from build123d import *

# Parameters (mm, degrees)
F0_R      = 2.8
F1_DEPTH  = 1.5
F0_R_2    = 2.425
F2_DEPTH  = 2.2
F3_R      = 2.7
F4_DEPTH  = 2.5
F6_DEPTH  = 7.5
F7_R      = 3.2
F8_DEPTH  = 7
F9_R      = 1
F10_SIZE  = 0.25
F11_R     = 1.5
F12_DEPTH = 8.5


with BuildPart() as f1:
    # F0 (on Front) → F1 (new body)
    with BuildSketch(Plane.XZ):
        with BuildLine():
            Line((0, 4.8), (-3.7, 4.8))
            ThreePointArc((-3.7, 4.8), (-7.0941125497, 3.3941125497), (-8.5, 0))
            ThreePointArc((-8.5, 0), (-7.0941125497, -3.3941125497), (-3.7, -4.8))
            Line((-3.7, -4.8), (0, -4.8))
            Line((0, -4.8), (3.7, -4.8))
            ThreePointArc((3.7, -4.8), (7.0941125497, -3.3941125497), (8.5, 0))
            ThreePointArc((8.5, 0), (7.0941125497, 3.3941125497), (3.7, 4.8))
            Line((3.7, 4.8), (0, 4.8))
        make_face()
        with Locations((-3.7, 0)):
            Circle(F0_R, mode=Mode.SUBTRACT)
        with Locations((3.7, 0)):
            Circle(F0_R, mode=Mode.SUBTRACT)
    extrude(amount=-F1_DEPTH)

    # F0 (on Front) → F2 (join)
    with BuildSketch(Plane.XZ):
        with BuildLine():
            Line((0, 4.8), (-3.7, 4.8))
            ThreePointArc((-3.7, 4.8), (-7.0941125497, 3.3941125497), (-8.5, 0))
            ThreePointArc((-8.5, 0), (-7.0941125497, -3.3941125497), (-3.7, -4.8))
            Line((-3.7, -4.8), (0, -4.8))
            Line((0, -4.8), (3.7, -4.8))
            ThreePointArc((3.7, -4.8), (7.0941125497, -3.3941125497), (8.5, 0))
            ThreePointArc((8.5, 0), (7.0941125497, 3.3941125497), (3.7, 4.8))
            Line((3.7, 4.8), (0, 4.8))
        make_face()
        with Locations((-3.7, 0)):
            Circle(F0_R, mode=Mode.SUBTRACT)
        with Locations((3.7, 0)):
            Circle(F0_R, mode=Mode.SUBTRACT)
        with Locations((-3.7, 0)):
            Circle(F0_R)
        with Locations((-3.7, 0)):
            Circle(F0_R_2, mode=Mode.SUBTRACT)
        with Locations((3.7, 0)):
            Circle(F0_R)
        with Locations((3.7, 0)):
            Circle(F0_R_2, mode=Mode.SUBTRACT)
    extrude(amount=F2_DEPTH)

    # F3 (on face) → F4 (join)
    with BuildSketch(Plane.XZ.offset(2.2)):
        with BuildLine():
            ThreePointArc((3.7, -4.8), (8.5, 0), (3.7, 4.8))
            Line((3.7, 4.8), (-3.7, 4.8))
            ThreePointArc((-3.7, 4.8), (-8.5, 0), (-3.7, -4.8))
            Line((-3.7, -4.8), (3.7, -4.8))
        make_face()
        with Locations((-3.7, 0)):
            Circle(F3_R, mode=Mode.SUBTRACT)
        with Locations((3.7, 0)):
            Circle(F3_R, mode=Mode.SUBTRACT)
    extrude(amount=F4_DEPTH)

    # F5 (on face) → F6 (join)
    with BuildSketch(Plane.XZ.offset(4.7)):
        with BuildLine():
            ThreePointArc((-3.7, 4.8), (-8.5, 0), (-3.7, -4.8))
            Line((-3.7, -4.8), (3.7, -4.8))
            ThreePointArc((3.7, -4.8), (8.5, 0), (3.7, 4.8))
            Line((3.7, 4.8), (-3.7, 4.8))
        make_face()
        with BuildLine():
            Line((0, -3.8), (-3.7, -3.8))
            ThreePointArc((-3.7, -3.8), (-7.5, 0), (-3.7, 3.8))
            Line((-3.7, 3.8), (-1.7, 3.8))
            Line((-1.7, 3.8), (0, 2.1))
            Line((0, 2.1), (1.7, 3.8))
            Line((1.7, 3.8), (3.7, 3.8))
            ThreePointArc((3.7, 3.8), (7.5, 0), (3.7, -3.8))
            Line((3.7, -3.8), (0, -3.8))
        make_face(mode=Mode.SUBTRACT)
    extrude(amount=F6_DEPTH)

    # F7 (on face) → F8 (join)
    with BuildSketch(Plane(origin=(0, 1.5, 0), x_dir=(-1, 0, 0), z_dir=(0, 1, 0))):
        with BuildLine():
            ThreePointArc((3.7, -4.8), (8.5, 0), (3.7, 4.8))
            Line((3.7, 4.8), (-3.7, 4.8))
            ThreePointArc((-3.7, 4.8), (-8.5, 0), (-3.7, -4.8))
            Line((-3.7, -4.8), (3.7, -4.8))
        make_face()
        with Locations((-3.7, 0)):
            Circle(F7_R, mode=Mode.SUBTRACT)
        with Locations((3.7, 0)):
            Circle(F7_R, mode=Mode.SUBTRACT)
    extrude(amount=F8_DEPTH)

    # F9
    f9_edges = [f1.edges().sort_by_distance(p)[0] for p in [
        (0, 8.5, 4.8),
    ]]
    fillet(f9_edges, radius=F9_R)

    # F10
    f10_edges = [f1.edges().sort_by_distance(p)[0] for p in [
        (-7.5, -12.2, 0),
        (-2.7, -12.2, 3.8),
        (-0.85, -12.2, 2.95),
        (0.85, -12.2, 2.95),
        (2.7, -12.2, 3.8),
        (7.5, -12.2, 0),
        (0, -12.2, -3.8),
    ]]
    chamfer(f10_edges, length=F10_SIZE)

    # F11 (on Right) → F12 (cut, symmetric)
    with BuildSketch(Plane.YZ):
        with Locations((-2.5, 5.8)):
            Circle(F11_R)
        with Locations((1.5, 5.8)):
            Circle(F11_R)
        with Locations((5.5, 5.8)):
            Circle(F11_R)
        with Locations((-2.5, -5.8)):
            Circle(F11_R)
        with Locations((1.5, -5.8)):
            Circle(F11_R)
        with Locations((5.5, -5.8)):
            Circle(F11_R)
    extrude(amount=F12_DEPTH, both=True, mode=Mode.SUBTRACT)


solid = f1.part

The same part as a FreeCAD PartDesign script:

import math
import FreeCAD as App
import Part
import Sketcher

V = App.Vector


def edges_at(feature, points):
    """Names of the edges that pass closest to the given points."""
    edges = feature.Shape.Edges
    near = lambda p: min(range(len(edges)), key=lambda i: edges[i].distToShape(Part.Vertex(*p))[0])
    return sorted({f"Edge{near(p) + 1}" for p in points})

doc = App.newDocument("Part")
body = doc.addObject("PartDesign::Body", "Body")

# Sketch on XZ plane
sketch1 = body.newObject("Sketcher::SketchObject", "Sketch")
sketch1.AttachmentSupport = (doc.getObject("XZ_Plane"), [""])
sketch1.MapMode = "FlatFace"
sketch1.addGeometry([
    Part.ArcOfCircle(Part.Circle(V(-3.7, 0, 0), V(0, 0, 1), 4.8), math.radians(90), math.radians(180)),  # 0
    Part.ArcOfCircle(Part.Circle(V(-3.7, 0, 0), V(0, 0, 1), 4.8), math.radians(180), math.radians(270)),  # 1
    Part.LineSegment(V(-3.7, -4.8, 0), V(3.7, -4.8, 0)),  # 2
    Part.ArcOfCircle(Part.Circle(V(3.7, 0, 0), V(0, 0, 1), 4.8), math.radians(-90), math.radians(0)),  # 3
    Part.ArcOfCircle(Part.Circle(V(3.7, 0, 0), V(0, 0, 1), 4.8), math.radians(0), math.radians(90)),  # 4
    Part.LineSegment(V(3.7, 4.8, 0), V(-3.7, 4.8, 0)),  # 5
    Part.Circle(V(-3.7, 0, 0), V(0, 0, 1), 2.8),  # 6
    Part.Circle(V(3.7, 0, 0), V(0, 0, 1), 2.8),  # 7
], False)
sketch1.addConstraint([
    Sketcher.Constraint("Tangent", 0, 2, 1, 1),
    Sketcher.Constraint("Tangent", 1, 2, 2, 1),
    Sketcher.Constraint("Tangent", 2, 2, 3, 1),
    Sketcher.Constraint("Tangent", 3, 2, 4, 1),
    Sketcher.Constraint("Tangent", 4, 2, 5, 1),
    Sketcher.Constraint("Tangent", 5, 2, 0, 1),
    Sketcher.Constraint("Horizontal", 2),
    Sketcher.Constraint("Horizontal", 5),
    Sketcher.Constraint("Coincident", 6, 3, 0, 3),
    Sketcher.Constraint("Coincident", 7, 3, 3, 3),
    Sketcher.Constraint("Equal", 0, 1),
    Sketcher.Constraint("Equal", 1, 3),
    Sketcher.Constraint("Equal", 6, 7),
    Sketcher.Constraint("Symmetric", 0, 3, 3, 3, -1, 1),
    Sketcher.Constraint("PointOnObject", 0, 2, -1),
    Sketcher.Constraint("PointOnObject", 3, 2, -1),
    Sketcher.Constraint("Diameter", 6, 5.6),
    Sketcher.Constraint("Radius", 0, 4.8),
    Sketcher.Constraint("DistanceX", 2, 1, 2, 2, 7.4),
])
pad1 = body.newObject("PartDesign::Pad", "Pad")
pad1.Profile = sketch1
pad1.Length = 1.5
pad1.Reversed = True

# Sketch on XZ plane
sketch2 = body.newObject("Sketcher::SketchObject", "Sketch001")
sketch2.AttachmentSupport = (doc.getObject("XZ_Plane"), [""])
sketch2.MapMode = "FlatFace"
sketch2.addGeometry([
    Part.ArcOfCircle(Part.Circle(V(-3.7, 0, 0), V(0, 0, 1), 4.8), math.radians(90), math.radians(180)),  # 0
    Part.ArcOfCircle(Part.Circle(V(-3.7, 0, 0), V(0, 0, 1), 4.8), math.radians(180), math.radians(270)),  # 1
    Part.LineSegment(V(-3.7, -4.8, 0), V(3.7, -4.8, 0)),  # 2
    Part.ArcOfCircle(Part.Circle(V(3.7, 0, 0), V(0, 0, 1), 4.8), math.radians(-90), math.radians(0)),  # 3
    Part.ArcOfCircle(Part.Circle(V(3.7, 0, 0), V(0, 0, 1), 4.8), math.radians(0), math.radians(90)),  # 4
    Part.LineSegment(V(3.7, 4.8, 0), V(-3.7, 4.8, 0)),  # 5
    Part.Circle(V(-3.7, 0, 0), V(0, 0, 1), 2.4),  # 6
    Part.Circle(V(3.7, 0, 0), V(0, 0, 1), 2.4),  # 7
], False)
sketch2.addConstraint([
    Sketcher.Constraint("Tangent", 0, 2, 1, 1),
    Sketcher.Constraint("Tangent", 1, 2, 2, 1),
    Sketcher.Constraint("Tangent", 2, 2, 3, 1),
    Sketcher.Constraint("Tangent", 3, 2, 4, 1),
    Sketcher.Constraint("Tangent", 4, 2, 5, 1),
    Sketcher.Constraint("Tangent", 5, 2, 0, 1),
    Sketcher.Constraint("Horizontal", 2),
    Sketcher.Constraint("Horizontal", 5),
    Sketcher.Constraint("Coincident", 6, 3, 0, 3),
    Sketcher.Constraint("Coincident", 7, 3, 3, 3),
    Sketcher.Constraint("Equal", 0, 1),
    Sketcher.Constraint("Equal", 1, 3),
    Sketcher.Constraint("Equal", 6, 7),
    Sketcher.Constraint("Symmetric", 0, 3, 3, 3, -1, 1),
    Sketcher.Constraint("PointOnObject", 0, 2, -1),
    Sketcher.Constraint("PointOnObject", 3, 2, -1),
    Sketcher.Constraint("Radius", 0, 4.8),
    Sketcher.Constraint("Diameter", 6, 4.85),
    Sketcher.Constraint("DistanceX", 2, 1, 2, 2, 7.4),
])
pad2 = body.newObject("PartDesign::Pad", "Pad001")
pad2.Profile = sketch2
pad2.Length = 2.2

# Sketch on XZ plane
sketch3 = body.newObject("Sketcher::SketchObject", "Sketch002")
sketch3.AttachmentSupport = (doc.getObject("XZ_Plane"), [""])
sketch3.MapMode = "FlatFace"
sketch3.AttachmentOffset = App.Placement(V(0, 0, 2.2), App.Rotation())
sketch3.addGeometry([
    Part.ArcOfCircle(Part.Circle(V(3.7, 0, 0), V(0, 0, 1), 4.8), math.radians(-90), math.radians(90)),  # 0
    Part.LineSegment(V(3.7, 4.8, 0), V(-3.7, 4.8, 0)),  # 1
    Part.ArcOfCircle(Part.Circle(V(-3.7, 0, 0), V(0, 0, 1), 4.8), math.radians(90), math.radians(270)),  # 2
    Part.LineSegment(V(-3.7, -4.8, 0), V(3.7, -4.8, 0)),  # 3
    Part.Circle(V(-3.7, 0, 0), V(0, 0, 1), 2.7),  # 4
    Part.Circle(V(3.7, 0, 0), V(0, 0, 1), 2.7),  # 5
], False)
sketch3.addConstraint([
    Sketcher.Constraint("Tangent", 0, 2, 1, 1),
    Sketcher.Constraint("Tangent", 1, 2, 2, 1),
    Sketcher.Constraint("Tangent", 2, 2, 3, 1),
    Sketcher.Constraint("Tangent", 3, 2, 0, 1),
    Sketcher.Constraint("Horizontal", 1),
    Sketcher.Constraint("Horizontal", 3),
    Sketcher.Constraint("Coincident", 4, 3, 2, 3),
    Sketcher.Constraint("Coincident", 5, 3, 0, 3),
    Sketcher.Constraint("Equal", 4, 5),
    Sketcher.Constraint("Symmetric", 0, 3, 2, 3, -1, 1),
    Sketcher.Constraint("Diameter", 4, 5.4),
    Sketcher.Constraint("Radius", 0, 4.8),
    Sketcher.Constraint("DistanceX", 1, 2, 1, 1, 7.4),
])
pad3 = body.newObject("PartDesign::Pad", "Pad002")
pad3.Profile = sketch3
pad3.Length = 2.5

# Sketch on XZ plane
sketch4 = body.newObject("Sketcher::SketchObject", "Sketch003")
sketch4.AttachmentSupport = (doc.getObject("XZ_Plane"), [""])
sketch4.MapMode = "FlatFace"
sketch4.AttachmentOffset = App.Placement(V(0, 0, 4.7), App.Rotation())
sketch4.addGeometry([
    Part.ArcOfCircle(Part.Circle(V(-3.7, 0, 0), V(0, 0, 1), 4.8), math.radians(90), math.radians(270)),  # 0
    Part.LineSegment(V(-3.7, -4.8, 0), V(3.7, -4.8, 0)),  # 1
    Part.ArcOfCircle(Part.Circle(V(3.7, 0, 0), V(0, 0, 1), 4.8), math.radians(-90), math.radians(90)),  # 2
    Part.LineSegment(V(3.7, 4.8, 0), V(-3.7, 4.8, 0)),  # 3
    Part.LineSegment(V(3.7, -3.8, 0), V(-3.7, -3.8, 0)),  # 4
    Part.ArcOfCircle(Part.Circle(V(-3.7, 0, 0), V(0, 0, 1), 3.8), math.radians(90), math.radians(270)),  # 5
    Part.LineSegment(V(-3.7, 3.8, 0), V(-1.7, 3.8, 0)),  # 6
    Part.LineSegment(V(-1.7, 3.8, 0), V(0, 2.1, 0)),  # 7
    Part.LineSegment(V(0, 2.1, 0), V(1.7, 3.8, 0)),  # 8
    Part.LineSegment(V(1.7, 3.8, 0), V(3.7, 3.8, 0)),  # 9
    Part.ArcOfCircle(Part.Circle(V(3.7, 0, 0), V(0, 0, 1), 3.8), math.radians(-90), math.radians(90)),  # 10
], False)
sketch4.addConstraint([
    Sketcher.Constraint("Tangent", 0, 2, 1, 1),
    Sketcher.Constraint("Tangent", 1, 2, 2, 1),
    Sketcher.Constraint("Tangent", 2, 2, 3, 1),
    Sketcher.Constraint("Tangent", 3, 2, 0, 1),
    Sketcher.Constraint("Tangent", 4, 2, 5, 2),
    Sketcher.Constraint("Tangent", 5, 1, 6, 1),
    Sketcher.Constraint("Coincident", 6, 2, 7, 1),
    Sketcher.Constraint("Coincident", 7, 2, 8, 1),
    Sketcher.Constraint("Coincident", 8, 2, 9, 1),
    Sketcher.Constraint("Tangent", 9, 2, 10, 2),
    Sketcher.Constraint("Tangent", 10, 1, 4, 1),
    Sketcher.Constraint("Horizontal", 1),
    Sketcher.Constraint("Horizontal", 3),
    Sketcher.Constraint("Horizontal", 4),
    Sketcher.Constraint("Horizontal", 6),
    Sketcher.Constraint("Horizontal", 9),
    Sketcher.Constraint("Coincident", 5, 3, 0, 3),
    Sketcher.Constraint("Coincident", 10, 3, 2, 3),
    Sketcher.Constraint("Symmetric", 0, 3, 2, 3, -1, 1),
    Sketcher.Constraint("PointOnObject", 7, 2, -2),
    Sketcher.Constraint("Perpendicular", 7, 8),
    Sketcher.Constraint("Equal", 6, 9),
    Sketcher.Constraint("Radius", 0, 4.8),
    Sketcher.Constraint("Radius", 5, 3.8),
    Sketcher.Constraint("DistanceX", 6, 1, 6, 2, 2.0),
    Sketcher.Constraint("DistanceX", 1, 1, 1, 2, 7.4),
])
pad4 = body.newObject("PartDesign::Pad", "Pad003")
pad4.Profile = sketch4
pad4.Length = 7.5

# Sketch on XZ plane
sketch5 = body.newObject("Sketcher::SketchObject", "Sketch004")
sketch5.AttachmentSupport = (doc.getObject("XZ_Plane"), [""])
sketch5.MapMode = "FlatFace"
sketch5.AttachmentOffset = App.Placement(V(0, 0, -1.5), App.Rotation())
sketch5.addGeometry([
    Part.ArcOfCircle(Part.Circle(V(-3.7, 0, 0), V(0, 0, 1), 4.8), math.radians(90), math.radians(270)),  # 0
    Part.LineSegment(V(-3.7, 4.8, 0), V(3.7, 4.8, 0)),  # 1
    Part.ArcOfCircle(Part.Circle(V(3.7, 0, 0), V(0, 0, 1), 4.8), math.radians(-90), math.radians(90)),  # 2
    Part.LineSegment(V(3.7, -4.8, 0), V(-3.7, -4.8, 0)),  # 3
    Part.Circle(V(3.7, 0, 0), V(0, 0, 1), 3.2),  # 4
    Part.Circle(V(-3.7, 0, 0), V(0, 0, 1), 3.2),  # 5
], False)
sketch5.addConstraint([
    Sketcher.Constraint("Tangent", 0, 1, 1, 1),
    Sketcher.Constraint("Tangent", 1, 2, 2, 2),
    Sketcher.Constraint("Tangent", 2, 1, 3, 1),
    Sketcher.Constraint("Tangent", 3, 2, 0, 2),
    Sketcher.Constraint("Horizontal", 1),
    Sketcher.Constraint("Horizontal", 3),
    Sketcher.Constraint("Coincident", 4, 3, 2, 3),
    Sketcher.Constraint("Coincident", 5, 3, 0, 3),
    Sketcher.Constraint("Equal", 4, 5),
    Sketcher.Constraint("Symmetric", 0, 3, 2, 3, -1, 1),
    Sketcher.Constraint("Diameter", 4, 6.4),
    Sketcher.Constraint("Radius", 0, 4.8),
    Sketcher.Constraint("DistanceX", 1, 1, 1, 2, 7.4),
])
pad5 = body.newObject("PartDesign::Pad", "Pad004")
pad5.Profile = sketch5
pad5.Length = 7
pad5.Reversed = True
doc.recompute()

fillet = body.newObject("PartDesign::Fillet", "Fillet")
fillet.Base = (pad5, edges_at(pad5, [(0, 8.5, 4.8)]))
fillet.Radius = 1
doc.recompute()

chamfer = body.newObject("PartDesign::Chamfer", "Chamfer")
chamfer.Base = (fillet, edges_at(fillet, [
    (-7.5, -12.2, 0),
    (-2.7, -12.2, 3.8),
    (-0.85, -12.2, 2.95),
    (0.85, -12.2, 2.95),
    (2.7, -12.2, 3.8),
    (7.5, -12.2, 0),
    (0, -12.2, -3.8),
]))
chamfer.Size = 0.25

# Sketch on YZ plane
sketch6 = body.newObject("Sketcher::SketchObject", "Sketch005")
sketch6.AttachmentSupport = (doc.getObject("YZ_Plane"), [""])
sketch6.MapMode = "FlatFace"
sketch6.addGeometry([
    Part.Circle(V(-2.5, 5.8, 0), V(0, 0, 1), 1.5),  # 0
    Part.Circle(V(1.5, 5.8, 0), V(0, 0, 1), 1.5),  # 1
    Part.Circle(V(5.5, 5.8, 0), V(0, 0, 1), 1.5),  # 2
    Part.Circle(V(-2.5, -5.8, 0), V(0, 0, 1), 1.5),  # 3
    Part.Circle(V(1.5, -5.8, 0), V(0, 0, 1), 1.5),  # 4
    Part.Circle(V(5.5, -5.8, 0), V(0, 0, 1), 1.5),  # 5
], False)
sketch6.addConstraint([
    Sketcher.Constraint("Equal", 0, 1),
    Sketcher.Constraint("Equal", 1, 2),
    Sketcher.Constraint("Equal", 2, 3),
    Sketcher.Constraint("Equal", 3, 4),
    Sketcher.Constraint("Equal", 4, 5),
    Sketcher.Constraint("Symmetric", 0, 3, 3, 3, -1),
    Sketcher.Constraint("Symmetric", 1, 3, 4, 3, -1),
    Sketcher.Constraint("Symmetric", 2, 3, 5, 3, -1),
    Sketcher.Constraint("Horizontal", 0, 3, 1, 3),
    Sketcher.Constraint("Horizontal", 1, 3, 2, 3),
    Sketcher.Constraint("Diameter", 0, 3.0),
    Sketcher.Constraint("DistanceX", 0, 3, 1, 3, 4.0),
    Sketcher.Constraint("DistanceX", 1, 3, 2, 3, 4.0),
    Sketcher.Constraint("DistanceX", 0, 3, -1, 1, 2.5),
    Sketcher.Constraint("DistanceY", -1, 1, 0, 3, 5.8),
])
pocket1 = body.newObject("PartDesign::Pocket", "Pocket")
pocket1.Profile = sketch6
pocket1.Length = 17
pocket1.Midplane = True

doc.recompute()
